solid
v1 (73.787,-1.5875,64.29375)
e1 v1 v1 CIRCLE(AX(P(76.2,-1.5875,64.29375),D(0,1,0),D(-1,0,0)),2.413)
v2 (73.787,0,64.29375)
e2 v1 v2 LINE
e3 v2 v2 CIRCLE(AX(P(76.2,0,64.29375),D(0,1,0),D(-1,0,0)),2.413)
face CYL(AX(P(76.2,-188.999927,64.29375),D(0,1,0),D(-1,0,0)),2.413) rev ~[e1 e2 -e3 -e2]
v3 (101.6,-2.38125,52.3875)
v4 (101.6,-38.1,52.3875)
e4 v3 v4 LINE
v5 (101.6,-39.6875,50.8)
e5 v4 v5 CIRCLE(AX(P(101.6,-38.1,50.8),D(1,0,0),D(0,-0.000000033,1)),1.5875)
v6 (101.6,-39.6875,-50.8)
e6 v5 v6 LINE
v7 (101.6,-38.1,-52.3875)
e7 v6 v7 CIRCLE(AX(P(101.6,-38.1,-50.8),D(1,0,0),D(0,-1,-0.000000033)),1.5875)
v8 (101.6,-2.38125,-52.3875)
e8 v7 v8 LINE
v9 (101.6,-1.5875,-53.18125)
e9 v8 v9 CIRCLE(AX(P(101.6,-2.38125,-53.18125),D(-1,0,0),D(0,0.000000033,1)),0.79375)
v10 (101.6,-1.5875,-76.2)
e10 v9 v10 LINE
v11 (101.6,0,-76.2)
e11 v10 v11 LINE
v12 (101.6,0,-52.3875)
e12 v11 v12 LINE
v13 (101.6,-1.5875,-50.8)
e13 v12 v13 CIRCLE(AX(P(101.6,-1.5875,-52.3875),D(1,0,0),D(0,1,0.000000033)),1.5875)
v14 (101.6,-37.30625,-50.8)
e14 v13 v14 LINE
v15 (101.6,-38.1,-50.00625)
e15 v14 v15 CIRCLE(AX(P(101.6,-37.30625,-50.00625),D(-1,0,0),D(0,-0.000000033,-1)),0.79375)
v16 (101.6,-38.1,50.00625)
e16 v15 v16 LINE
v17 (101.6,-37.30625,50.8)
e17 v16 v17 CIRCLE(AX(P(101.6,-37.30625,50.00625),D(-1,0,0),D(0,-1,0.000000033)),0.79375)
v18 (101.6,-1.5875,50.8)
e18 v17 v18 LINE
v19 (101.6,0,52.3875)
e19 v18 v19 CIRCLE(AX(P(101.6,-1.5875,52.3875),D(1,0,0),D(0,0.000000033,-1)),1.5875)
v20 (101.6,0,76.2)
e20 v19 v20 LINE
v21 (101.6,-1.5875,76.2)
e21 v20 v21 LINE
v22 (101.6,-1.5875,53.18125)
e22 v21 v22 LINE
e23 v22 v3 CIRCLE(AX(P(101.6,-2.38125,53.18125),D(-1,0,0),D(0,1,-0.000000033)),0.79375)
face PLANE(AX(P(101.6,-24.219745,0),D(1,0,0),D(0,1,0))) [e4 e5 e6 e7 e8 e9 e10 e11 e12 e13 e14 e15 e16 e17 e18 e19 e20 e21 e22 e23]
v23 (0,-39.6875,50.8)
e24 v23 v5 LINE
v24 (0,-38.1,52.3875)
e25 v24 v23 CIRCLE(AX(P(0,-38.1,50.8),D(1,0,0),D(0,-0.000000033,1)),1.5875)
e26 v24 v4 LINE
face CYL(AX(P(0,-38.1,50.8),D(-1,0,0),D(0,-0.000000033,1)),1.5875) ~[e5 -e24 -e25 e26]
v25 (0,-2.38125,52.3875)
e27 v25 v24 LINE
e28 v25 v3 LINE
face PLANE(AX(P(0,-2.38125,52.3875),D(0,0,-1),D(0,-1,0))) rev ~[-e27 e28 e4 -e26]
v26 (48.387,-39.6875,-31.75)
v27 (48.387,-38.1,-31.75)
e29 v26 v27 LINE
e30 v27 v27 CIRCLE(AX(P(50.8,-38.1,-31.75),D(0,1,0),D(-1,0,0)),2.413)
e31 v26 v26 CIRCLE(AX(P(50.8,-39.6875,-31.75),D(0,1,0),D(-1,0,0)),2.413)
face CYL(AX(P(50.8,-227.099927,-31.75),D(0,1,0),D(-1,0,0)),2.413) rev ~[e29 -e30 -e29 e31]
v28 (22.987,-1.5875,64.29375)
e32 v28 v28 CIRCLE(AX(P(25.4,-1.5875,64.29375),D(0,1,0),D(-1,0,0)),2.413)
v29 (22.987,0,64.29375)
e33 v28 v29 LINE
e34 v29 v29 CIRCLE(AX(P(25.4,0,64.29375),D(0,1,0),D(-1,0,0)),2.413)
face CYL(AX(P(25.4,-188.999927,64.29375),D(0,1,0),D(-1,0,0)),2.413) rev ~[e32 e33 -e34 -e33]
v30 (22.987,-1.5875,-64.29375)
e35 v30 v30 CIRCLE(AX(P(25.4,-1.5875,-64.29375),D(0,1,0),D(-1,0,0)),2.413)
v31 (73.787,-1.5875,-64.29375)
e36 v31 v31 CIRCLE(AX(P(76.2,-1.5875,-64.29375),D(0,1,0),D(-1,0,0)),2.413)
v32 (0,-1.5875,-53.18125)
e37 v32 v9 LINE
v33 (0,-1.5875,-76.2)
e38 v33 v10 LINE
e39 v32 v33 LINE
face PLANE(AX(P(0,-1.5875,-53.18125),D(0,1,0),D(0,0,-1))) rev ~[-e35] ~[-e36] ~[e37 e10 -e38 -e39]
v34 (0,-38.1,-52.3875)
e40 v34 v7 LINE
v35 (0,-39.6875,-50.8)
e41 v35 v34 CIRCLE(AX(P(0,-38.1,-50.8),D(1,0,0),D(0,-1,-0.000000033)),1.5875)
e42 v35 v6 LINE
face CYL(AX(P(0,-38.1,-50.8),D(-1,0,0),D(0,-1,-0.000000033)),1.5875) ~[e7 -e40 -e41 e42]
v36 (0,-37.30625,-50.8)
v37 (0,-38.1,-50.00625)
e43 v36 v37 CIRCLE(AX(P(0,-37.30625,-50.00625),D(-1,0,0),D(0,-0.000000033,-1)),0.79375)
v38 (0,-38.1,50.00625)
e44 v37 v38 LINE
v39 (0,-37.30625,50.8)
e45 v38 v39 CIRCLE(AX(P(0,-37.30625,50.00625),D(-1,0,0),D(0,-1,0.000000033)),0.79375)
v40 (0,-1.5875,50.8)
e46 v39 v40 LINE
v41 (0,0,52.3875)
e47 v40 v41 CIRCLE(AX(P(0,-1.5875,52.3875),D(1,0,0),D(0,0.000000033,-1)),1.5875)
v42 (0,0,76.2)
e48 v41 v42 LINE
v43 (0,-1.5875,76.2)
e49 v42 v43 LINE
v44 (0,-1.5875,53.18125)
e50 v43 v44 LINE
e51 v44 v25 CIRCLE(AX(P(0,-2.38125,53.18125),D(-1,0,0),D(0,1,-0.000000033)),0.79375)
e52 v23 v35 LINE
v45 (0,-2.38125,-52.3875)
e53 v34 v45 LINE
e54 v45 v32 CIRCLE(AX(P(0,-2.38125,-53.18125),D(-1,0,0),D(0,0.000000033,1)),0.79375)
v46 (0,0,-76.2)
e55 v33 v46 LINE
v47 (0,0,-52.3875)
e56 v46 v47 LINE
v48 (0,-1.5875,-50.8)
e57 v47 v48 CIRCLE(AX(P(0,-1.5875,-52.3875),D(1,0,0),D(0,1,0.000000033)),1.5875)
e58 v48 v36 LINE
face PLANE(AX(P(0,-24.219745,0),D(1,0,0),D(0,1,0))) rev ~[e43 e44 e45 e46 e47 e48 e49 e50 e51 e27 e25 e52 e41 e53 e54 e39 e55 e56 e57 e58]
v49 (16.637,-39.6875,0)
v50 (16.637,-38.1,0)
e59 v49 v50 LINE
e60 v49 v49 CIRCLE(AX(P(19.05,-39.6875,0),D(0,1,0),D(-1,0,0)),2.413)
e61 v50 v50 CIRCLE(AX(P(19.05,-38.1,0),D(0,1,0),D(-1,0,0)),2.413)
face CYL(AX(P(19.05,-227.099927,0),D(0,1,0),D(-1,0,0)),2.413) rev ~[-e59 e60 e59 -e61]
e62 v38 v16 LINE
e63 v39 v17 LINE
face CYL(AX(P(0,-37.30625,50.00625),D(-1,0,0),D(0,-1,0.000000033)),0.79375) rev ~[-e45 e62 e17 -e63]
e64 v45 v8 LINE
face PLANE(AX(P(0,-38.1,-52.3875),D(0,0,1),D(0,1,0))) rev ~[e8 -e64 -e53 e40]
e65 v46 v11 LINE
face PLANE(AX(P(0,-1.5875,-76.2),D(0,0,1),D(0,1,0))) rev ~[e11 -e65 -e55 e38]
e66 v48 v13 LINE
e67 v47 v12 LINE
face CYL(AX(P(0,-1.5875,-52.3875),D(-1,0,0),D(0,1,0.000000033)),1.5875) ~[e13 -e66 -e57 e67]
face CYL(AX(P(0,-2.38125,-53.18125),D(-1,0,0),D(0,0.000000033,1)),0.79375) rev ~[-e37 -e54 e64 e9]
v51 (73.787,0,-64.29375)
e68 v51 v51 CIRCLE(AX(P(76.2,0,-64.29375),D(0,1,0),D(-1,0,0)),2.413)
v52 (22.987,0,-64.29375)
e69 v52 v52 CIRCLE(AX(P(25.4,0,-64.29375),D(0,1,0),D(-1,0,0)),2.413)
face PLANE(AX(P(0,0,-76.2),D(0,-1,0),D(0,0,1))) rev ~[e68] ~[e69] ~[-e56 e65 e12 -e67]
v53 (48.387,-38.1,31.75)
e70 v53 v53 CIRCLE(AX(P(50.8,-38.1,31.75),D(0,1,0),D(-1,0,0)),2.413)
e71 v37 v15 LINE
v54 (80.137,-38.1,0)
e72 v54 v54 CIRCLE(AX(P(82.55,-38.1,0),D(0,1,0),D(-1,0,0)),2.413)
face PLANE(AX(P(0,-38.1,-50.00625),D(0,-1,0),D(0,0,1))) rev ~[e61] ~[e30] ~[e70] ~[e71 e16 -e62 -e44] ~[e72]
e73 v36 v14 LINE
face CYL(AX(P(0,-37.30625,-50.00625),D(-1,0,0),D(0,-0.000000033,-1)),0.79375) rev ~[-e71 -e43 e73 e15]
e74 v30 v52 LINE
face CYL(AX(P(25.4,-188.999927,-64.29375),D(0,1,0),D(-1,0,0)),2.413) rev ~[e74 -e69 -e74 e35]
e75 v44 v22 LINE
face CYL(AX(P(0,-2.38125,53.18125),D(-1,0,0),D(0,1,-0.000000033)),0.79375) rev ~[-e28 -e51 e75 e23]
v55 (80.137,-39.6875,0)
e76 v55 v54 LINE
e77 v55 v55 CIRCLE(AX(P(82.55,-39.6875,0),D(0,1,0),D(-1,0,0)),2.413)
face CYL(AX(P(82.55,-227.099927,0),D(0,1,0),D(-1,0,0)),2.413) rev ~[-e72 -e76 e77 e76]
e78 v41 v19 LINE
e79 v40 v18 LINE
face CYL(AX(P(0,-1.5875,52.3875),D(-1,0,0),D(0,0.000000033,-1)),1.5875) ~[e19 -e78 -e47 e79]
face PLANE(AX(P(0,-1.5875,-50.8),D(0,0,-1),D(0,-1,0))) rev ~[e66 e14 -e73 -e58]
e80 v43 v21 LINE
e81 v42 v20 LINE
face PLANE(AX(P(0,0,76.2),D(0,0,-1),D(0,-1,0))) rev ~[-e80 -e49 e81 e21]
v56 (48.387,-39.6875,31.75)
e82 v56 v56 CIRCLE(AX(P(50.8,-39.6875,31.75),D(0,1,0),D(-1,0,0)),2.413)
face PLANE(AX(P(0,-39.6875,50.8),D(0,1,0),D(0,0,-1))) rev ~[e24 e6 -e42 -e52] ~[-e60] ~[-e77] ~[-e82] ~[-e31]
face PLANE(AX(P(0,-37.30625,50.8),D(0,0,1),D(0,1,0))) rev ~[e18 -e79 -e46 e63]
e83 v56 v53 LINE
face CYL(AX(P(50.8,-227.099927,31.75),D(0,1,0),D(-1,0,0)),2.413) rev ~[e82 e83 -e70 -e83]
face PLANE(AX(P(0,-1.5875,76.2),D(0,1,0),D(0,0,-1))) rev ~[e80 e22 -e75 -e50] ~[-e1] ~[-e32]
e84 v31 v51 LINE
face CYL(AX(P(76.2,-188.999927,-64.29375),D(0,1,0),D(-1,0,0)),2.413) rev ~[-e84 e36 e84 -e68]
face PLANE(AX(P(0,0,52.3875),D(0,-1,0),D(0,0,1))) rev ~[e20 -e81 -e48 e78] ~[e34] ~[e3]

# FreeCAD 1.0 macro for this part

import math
import FreeCAD as App
import Part
import Sketcher
from FreeCAD import Vector
Q = App.Units.Quantity

doc = App.newDocument("Part")
body = doc.addObject("PartDesign::Body", "Body")

# Sketch on YZ plane
sketch1 = body.newObject("Sketcher::SketchObject", "Sketch")
sketch1.AttachmentSupport = (doc.getObject("YZ_Plane"), [""])
sketch1.MapMode = "FlatFace"
sketch1.addGeometry(Part.LineSegment(Vector(-37.30625, 50.8, 0), Vector(-1.5875, 50.8, 0)), False)
sketch1.addGeometry(Part.ArcOfCircle(Part.Circle(Vector(-1.5875, 52.3875, 0), Vector(0, 0, 1), 1.5875), math.radians(-89.999998), math.radians(-0.000002)), False)
sketch1.addGeometry(Part.LineSegment(Vector(0, 52.3875, 0), Vector(0, 76.2, 0)), False)
sketch1.addGeometry(Part.LineSegment(Vector(0, 76.2, 0), Vector(-1.5875, 76.2, 0)), False)
sketch1.addGeometry(Part.LineSegment(Vector(-1.5875, 76.2, 0), Vector(-1.5875, 53.18125, 0)), False)
sketch1.addGeometry(Part.ArcOfCircle(Part.Circle(Vector(-2.38125, 53.18125, 0), Vector(0, 0, 1), 0.79375), math.radians(-89.999998), math.radians(-0.000002)), False)
sketch1.addGeometry(Part.LineSegment(Vector(-2.38125, 52.3875, 0), Vector(-38.1, 52.3875, 0)), False)
sketch1.addGeometry(Part.ArcOfCircle(Part.Circle(Vector(-38.1, 50.8, 0), Vector(0, 0, 1), 1.5875), math.radians(90.000002), math.radians(179.999998)), False)
sketch1.addGeometry(Part.LineSegment(Vector(-39.6875, 50.8, 0), Vector(-39.6875, -50.8, 0)), False)
sketch1.addGeometry(Part.ArcOfCircle(Part.Circle(Vector(-38.1, -50.8, 0), Vector(0, 0, 1), 1.5875), math.radians(-179.999998), math.radians(-90.000002)), False)
sketch1.addGeometry(Part.LineSegment(Vector(-38.1, -52.3875, 0), Vector(-2.38125, -52.3875, 0)), False)
sketch1.addGeometry(Part.ArcOfCircle(Part.Circle(Vector(-2.38125, -53.18125, 0), Vector(0, 0, 1), 0.79375), math.radians(0.000002), math.radians(89.999998)), False)
sketch1.addGeometry(Part.LineSegment(Vector(-1.5875, -53.18125, 0), Vector(-1.5875, -76.2, 0)), False)
sketch1.addGeometry(Part.LineSegment(Vector(-1.5875, -76.2, 0), Vector(0, -76.2, 0)), False)
sketch1.addGeometry(Part.LineSegment(Vector(0, -76.2, 0), Vector(0, -52.3875, 0)), False)
sketch1.addGeometry(Part.ArcOfCircle(Part.Circle(Vector(-1.5875, -52.3875, 0), Vector(0, 0, 1), 1.5875), math.radians(0.000002), math.radians(89.999998)), False)
sketch1.addGeometry(Part.LineSegment(Vector(-1.5875, -50.8, 0), Vector(-37.30625, -50.8, 0)), False)
sketch1.addGeometry(Part.ArcOfCircle(Part.Circle(Vector(-37.30625, -50.00625, 0), Vector(0, 0, 1), 0.79375), math.radians(-179.999998), math.radians(-90.000002)), False)
sketch1.addGeometry(Part.LineSegment(Vector(-38.1, -50.00625, 0), Vector(-38.1, 50.00625, 0)), False)
sketch1.addGeometry(Part.ArcOfCircle(Part.Circle(Vector(-37.30625, 50.00625, 0), Vector(0, 0, 1), 0.79375), math.radians(90.000002), math.radians(179.999998)), False)
sketch1.addConstraint(Sketcher.Constraint("Tangent", 0, 2, 1, 1))
sketch1.addConstraint(Sketcher.Constraint("Tangent", 1, 2, 2, 1))
sketch1.addConstraint(Sketcher.Constraint("Coincident", 2, 2, 3, 1))
sketch1.addConstraint(Sketcher.Constraint("Coincident", 3, 2, 4, 1))
sketch1.addConstraint(Sketcher.Constraint("Tangent", 4, 2, 5, 2))
sketch1.addConstraint(Sketcher.Constraint("Tangent", 5, 1, 6, 1))
sketch1.addConstraint(Sketcher.Constraint("Tangent", 6, 2, 7, 1))
sketch1.addConstraint(Sketcher.Constraint("Tangent", 7, 2, 8, 1))
sketch1.addConstraint(Sketcher.Constraint("Tangent", 8, 2, 9, 1))
sketch1.addConstraint(Sketcher.Constraint("Tangent", 9, 2, 10, 1))
sketch1.addConstraint(Sketcher.Constraint("Tangent", 10, 2, 11, 2))
sketch1.addConstraint(Sketcher.Constraint("Tangent", 11, 1, 12, 1))
sketch1.addConstraint(Sketcher.Constraint("Coincident", 12, 2, 13, 1))
sketch1.addConstraint(Sketcher.Constraint("Coincident", 13, 2, 14, 1))
sketch1.addConstraint(Sketcher.Constraint("Tangent", 14, 2, 15, 1))
sketch1.addConstraint(Sketcher.Constraint("Tangent", 15, 2, 16, 1))
sketch1.addConstraint(Sketcher.Constraint("Tangent", 16, 2, 17, 2))
sketch1.addConstraint(Sketcher.Constraint("Tangent", 17, 1, 18, 1))
sketch1.addConstraint(Sketcher.Constraint("Tangent", 18, 2, 19, 2))
sketch1.addConstraint(Sketcher.Constraint("Tangent", 19, 1, 0, 1))
sketch1.addConstraint(Sketcher.Constraint("Horizontal", 0))
sketch1.addConstraint(Sketcher.Constraint("Vertical", 2))
sketch1.addConstraint(Sketcher.Constraint("Horizontal", 3))
sketch1.addConstraint(Sketcher.Constraint("Vertical", 4))
sketch1.addConstraint(Sketcher.Constraint("Horizontal", 6))
sketch1.addConstraint(Sketcher.Constraint("Vertical", 8))
sketch1.addConstraint(Sketcher.Constraint("Horizontal", 10))
sketch1.addConstraint(Sketcher.Constraint("Vertical", 12))
sketch1.addConstraint(Sketcher.Constraint("Horizontal", 13))
sketch1.addConstraint(Sketcher.Constraint("Vertical", 14))
sketch1.addConstraint(Sketcher.Constraint("Horizontal", 16))
sketch1.addConstraint(Sketcher.Constraint("Vertical", 18))
sketch1.addConstraint(Sketcher.Constraint("Equal", 1, 7))
sketch1.addConstraint(Sketcher.Constraint("Equal", 7, 9))
sketch1.addConstraint(Sketcher.Constraint("Equal", 5, 11))
sketch1.addConstraint(Sketcher.Constraint("Equal", 9, 15))
sketch1.addConstraint(Sketcher.Constraint("Equal", 11, 17))
sketch1.addConstraint(Sketcher.Constraint("Equal", 17, 19))
sketch1.addConstraint(Sketcher.Constraint("Symmetric", 2, 2, 13, 2, -1, 1))
sketch1.addConstraint(Sketcher.Constraint("Symmetric", 5, 3, 11, 3, -1))
sketch1.addConstraint(Sketcher.Constraint("Symmetric", 1, 3, 15, 3, -1))
sketch1.addConstraint(Sketcher.Constraint("Horizontal", 7, 3, 0, 2))
sketch1.addConstraint(Sketcher.Constraint("Vertical", 0, 2, 3, 2))
sketch1.addConstraint(Sketcher.Constraint("Vertical", 9, 2, 17, 1))
sketch1.addConstraint(Sketcher.Constraint("DistanceY", 8, 2, 8, 1, Q("4 in")))
sketch1.addConstraint(Sketcher.Constraint("DistanceY", -1, 1, 2, 2, Q("3 in")))
sketch1.addConstraint(Sketcher.Constraint("Radius", 1, Q("0.0625 in")))
sketch1.addConstraint(Sketcher.Constraint("Radius", 5, Q("0.03125 in")))
sketch1.addConstraint(Sketcher.Constraint("DistanceX", 7, 3, -1, 1, Q("1.5 in")))
pad1 = body.newObject("PartDesign::Pad", "Pad")
pad1.Profile = sketch1
pad1.Length = Q("4 in")

# Sketch on XZ plane
sketch2 = body.newObject("Sketcher::SketchObject", "Sketch001")
sketch2.AttachmentSupport = (doc.getObject("XZ_Plane"), [""])
sketch2.MapMode = "FlatFace"
sketch2.AttachmentOffset = App.Placement(Vector(0, 0, 0.0625 * 25.4), App.Rotation())
sketch2.addGeometry(Part.Circle(Vector(25.4, -64.29375, 0), Vector(0, 0, 1), 2.413), False)
sketch2.addGeometry(Part.Circle(Vector(76.2, -64.29375, 0), Vector(0, 0, 1), 2.413), False)
sketch2.addConstraint(Sketcher.Constraint("Equal", 0, 1))
sketch2.addConstraint(Sketcher.Constraint("Horizontal", 0, 3, 1, 3))
sketch2.addConstraint(Sketcher.Constraint("Diameter", 0, Q("0.19 in")))
sketch2.addConstraint(Sketcher.Constraint("DistanceX", -1, 1, 0, 3, Q("1 in")))
sketch2.addConstraint(Sketcher.Constraint("DistanceX", -1, 1, 1, 3, Q("3 in")))
sketch2.addConstraint(Sketcher.Constraint("DistanceY", 0, 3, -1, 1, Q("2.53125 in")))
doc.recompute()
hole = body.newObject("PartDesign::Hole", "Hole")
hole.Profile = sketch2
hole.ThreadType = "None"
hole.Diameter = Q("0.19 in")
hole.DepthType = "ThroughAll"

# Sketch on XZ plane
sketch3 = body.newObject("Sketcher::SketchObject", "Sketch002")
sketch3.AttachmentSupport = (doc.getObject("XZ_Plane"), [""])
sketch3.MapMode = "FlatFace"
sketch3.AttachmentOffset = App.Placement(Vector(0, 0, 0.0625 * 25.4), App.Rotation())
sketch3.addGeometry(Part.Circle(Vector(25.4, 64.29375, 0), Vector(0, 0, 1), 2.413), False)
sketch3.addGeometry(Part.Circle(Vector(76.2, 64.29375, 0), Vector(0, 0, 1), 2.413), False)
sketch3.addConstraint(Sketcher.Constraint("Equal", 0, 1))
sketch3.addConstraint(Sketcher.Constraint("Horizontal", 0, 3, 1, 3))
sketch3.addConstraint(Sketcher.Constraint("Diameter", 0, Q("0.19 in")))
sketch3.addConstraint(Sketcher.Constraint("DistanceX", -1, 1, 0, 3, Q("1 in")))
sketch3.addConstraint(Sketcher.Constraint("DistanceX", -1, 1, 1, 3, Q("3 in")))
sketch3.addConstraint(Sketcher.Constraint("DistanceY", -1, 1, 0, 3, Q("2.53125 in")))
doc.recompute()
hole2 = body.newObject("PartDesign::Hole", "Hole001")
hole2.Profile = sketch3
hole2.ThreadType = "None"
hole2.Diameter = Q("0.19 in")
hole2.DepthType = "ThroughAll"

# Sketch on XZ plane
sketch4 = body.newObject("Sketcher::SketchObject", "Sketch003")
sketch4.AttachmentSupport = (doc.getObject("XZ_Plane"), [""])
sketch4.MapMode = "FlatFace"
sketch4.AttachmentOffset = App.Placement(Vector(0, 0, 1.5625 * 25.4), App.Rotation())
sketch4.addGeometry(Part.Circle(Vector(19.05, 0, 0), Vector(0, 0, 1), 2.413), False)
sketch4.addGeometry(Part.Circle(Vector(82.55, 0, 0), Vector(0, 0, 1), 2.413), False)
sketch4.addConstraint(Sketcher.Constraint("Equal", 0, 1))
sketch4.addConstraint(Sketcher.Constraint("PointOnObject", 0, 3, -1))
sketch4.addConstraint(Sketcher.Constraint("PointOnObject", 1, 3, -1))
sketch4.addConstraint(Sketcher.Constraint("Diameter", 0, Q("0.19 in")))
sketch4.addConstraint(Sketcher.Constraint("DistanceX", 0, 3, 1, 3, Q("2.5 in")))
sketch4.addConstraint(Sketcher.Constraint("DistanceX", -1, 1, 0, 3, Q("0.75 in")))
doc.recompute()
hole3 = body.newObject("PartDesign::Hole", "Hole002")
hole3.Profile = sketch4
hole3.ThreadType = "None"
hole3.Diameter = Q("0.19 in")
hole3.DepthType = "ThroughAll"

# Sketch on XZ plane
sketch5 = body.newObject("Sketcher::SketchObject", "Sketch004")
sketch5.AttachmentSupport = (doc.getObject("XZ_Plane"), [""])
sketch5.MapMode = "FlatFace"
sketch5.AttachmentOffset = App.Placement(Vector(0, 0, 1.5625 * 25.4), App.Rotation())
sketch5.addGeometry(Part.Circle(Vector(50.8, -31.75, 0), Vector(0, 0, 1), 2.413), False)
sketch5.addGeometry(Part.Circle(Vector(50.8, 31.75, 0), Vector(0, 0, 1), 2.413), False)
sketch5.addConstraint(Sketcher.Constraint("Equal", 0, 1))
sketch5.addConstraint(Sketcher.Constraint("Symmetric", 0, 3, 1, 3, -1))
sketch5.addConstraint(Sketcher.Constraint("Diameter", 0, Q("0.19 in")))
sketch5.addConstraint(Sketcher.Constraint("DistanceX", -1, 1, 0, 3, Q("2 in")))
sketch5.addConstraint(Sketcher.Constraint("DistanceY", 0, 3, 1, 3, Q("2.5 in")))
doc.recompute()
hole4 = body.newObject("PartDesign::Hole", "Hole003")
hole4.Profile = sketch5
hole4.ThreadType = "None"
hole4.Diameter = Q("0.19 in")
hole4.DepthType = "ThroughAll"

doc.recompute()
